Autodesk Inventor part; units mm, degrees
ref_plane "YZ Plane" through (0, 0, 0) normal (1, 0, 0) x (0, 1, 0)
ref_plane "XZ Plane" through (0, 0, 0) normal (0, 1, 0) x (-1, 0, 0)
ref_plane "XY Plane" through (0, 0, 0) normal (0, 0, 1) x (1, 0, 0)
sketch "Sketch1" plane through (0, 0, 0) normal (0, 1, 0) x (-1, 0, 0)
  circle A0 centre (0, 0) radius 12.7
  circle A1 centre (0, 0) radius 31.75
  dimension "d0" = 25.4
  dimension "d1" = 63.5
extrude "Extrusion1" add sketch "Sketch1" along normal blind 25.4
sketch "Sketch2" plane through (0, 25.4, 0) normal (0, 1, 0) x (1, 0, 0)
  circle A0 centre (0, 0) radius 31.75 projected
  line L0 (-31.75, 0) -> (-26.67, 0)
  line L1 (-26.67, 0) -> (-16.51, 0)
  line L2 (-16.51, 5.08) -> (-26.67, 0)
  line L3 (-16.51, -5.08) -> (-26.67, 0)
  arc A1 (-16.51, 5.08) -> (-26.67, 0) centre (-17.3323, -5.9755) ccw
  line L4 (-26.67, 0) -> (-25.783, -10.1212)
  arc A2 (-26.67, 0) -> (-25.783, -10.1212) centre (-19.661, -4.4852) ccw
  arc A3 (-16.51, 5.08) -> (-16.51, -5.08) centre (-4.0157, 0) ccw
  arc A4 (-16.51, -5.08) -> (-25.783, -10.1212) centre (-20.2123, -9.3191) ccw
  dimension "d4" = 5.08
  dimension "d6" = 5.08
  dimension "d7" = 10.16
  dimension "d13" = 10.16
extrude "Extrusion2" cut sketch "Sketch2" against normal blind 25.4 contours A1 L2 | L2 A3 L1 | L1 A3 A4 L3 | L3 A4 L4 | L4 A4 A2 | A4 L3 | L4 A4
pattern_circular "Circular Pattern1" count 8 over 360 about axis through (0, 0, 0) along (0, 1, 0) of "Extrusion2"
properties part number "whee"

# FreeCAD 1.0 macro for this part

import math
import FreeCAD as App
import Part
import Sketcher
from FreeCAD import Vector
Q = App.Units.Quantity

doc = App.newDocument("Part")
params = doc.addObject("Spreadsheet::Sheet", "Params")
for row, (alias, value) in enumerate([
    ("sketch1_diameter", "1 in"),
    ("sketch1_diameter2", "2.5 in"),
    ("pad1_length", "1 in"),
    ("sketch2_radius", "0.531 in"),
    ("pocket1_length", "1 in"),
], start=1):
    params.set(f"A{row}", alias)
    params.set(f"B{row}", "=" + value)
    params.setAlias(f"B{row}", alias)

body = doc.addObject("PartDesign::Body", "Body")

# Sketch on XZ plane
sketch1 = doc.addObject("Sketcher::SketchObject", "Sketch")
body.addObject(sketch1)
sketch1.AttachmentSupport = (doc.XZ_Plane, [""])
sketch1.MapMode = "FlatFace"
sketch1.addGeometry(Part.Circle(Vector(0, 0, 0), Vector(0, 0, 1), 32), False)
sketch1.addGeometry(Part.Circle(Vector(0, 0, 0), Vector(0, 0, 1), 13), False)
sketch1.addConstraint(Sketcher.Constraint("Coincident", 0, 3, -1, 1))
sketch1.addConstraint(Sketcher.Constraint("Coincident", 1, 3, -1, 1))
sketch1.addConstraint(Sketcher.Constraint("Diameter", 1, Q("1 in")))
sketch1.addConstraint(Sketcher.Constraint("Diameter", 0, Q("2.5 in")))
sketch1.setExpression("Constraints[2]", "Params.sketch1_diameter")
sketch1.setExpression("Constraints[3]", "Params.sketch1_diameter2")
pad1 = doc.addObject("PartDesign::Pad", "Pad")
body.addObject(pad1)
pad1.Profile = sketch1
pad1.setExpression("Length", "Params.pad1_length")
pad1.Reversed = True

# Sketch on XZ plane
sketch2 = doc.addObject("Sketcher::SketchObject", "Sketch001")
body.addObject(sketch2)
sketch2.AttachmentSupport = (doc.XZ_Plane, [""])
sketch2.MapMode = "FlatFace"
sketch2.AttachmentOffset = App.Placement(Vector(0, 0, -1 * 25.4), App.Rotation())
sketch2.addGeometry(Part.ArcOfCircle(Part.Circle(Vector(-17.3, 6, 0), Vector(0, 0, 1), 11.1), math.radians(-147), math.radians(-86)), False)
sketch2.addGeometry(Part.ArcOfCircle(Part.Circle(Vector(-19.7, 4.5, 0), Vector(0, 0, 1), 8.3), math.radians(137), math.radians(213)), False)
sketch2.addGeometry(Part.LineSegment(Vector(-25.8, 10.1, 0), Vector(-25.8, 9.5, 0)), False)
sketch2.addGeometry(Part.ArcOfCircle(Part.Circle(Vector(-20.2, 9.3, 0), Vector(0, 0, 1), 5.6), math.radians(178), math.radians(282)), False)
sketch2.addGeometry(Part.LineSegment(Vector(-19, 3.8, 0), Vector(-16.5, 5.1, 0)), False)
sketch2.addGeometry(Part.ArcOfCircle(Part.Circle(Vector(-4, 0, 0), Vector(0, 0, 1), 13.5), math.radians(158), math.radians(202)), False)
sketch2.addConstraint(Sketcher.Constraint("Tangent", 0, 1, 1, 2))
sketch2.addConstraint(Sketcher.Constraint("Coincident", 1, 1, 2, 1))
sketch2.addConstraint(Sketcher.Constraint("Coincident", 2, 2, 3, 1))
sketch2.addConstraint(Sketcher.Constraint("Coincident", 3, 2, 4, 1))
sketch2.addConstraint(Sketcher.Constraint("Coincident", 4, 2, 5, 1))
sketch2.addConstraint(Sketcher.Constraint("Coincident", 5, 2, 0, 2))
sketch2.addConstraint(Sketcher.Constraint("Symmetric", 4, 2, 5, 2, -1))
sketch2.addConstraint(Sketcher.Constraint("PointOnObject", 0, 1, -1))
sketch2.addConstraint(Sketcher.Constraint("DistanceY", -1, 1, 4, 2, Q("0.2 in")))
sketch2.addConstraint(Sketcher.Constraint("DistanceX", 0, 1, 5, 2, Q("0.4 in")))
sketch2.addConstraint(Sketcher.Constraint("Radius", 5, Q("0.531 in")))
sketch2.addConstraint(Sketcher.Constraint("Radius", 1, Q("0.3276 in")))
sketch2.addConstraint(Sketcher.Constraint("DistanceX", 0, 1, -1, 1, Q("1.05 in")))
sketch2.addConstraint(Sketcher.Constraint("Radius", 0, 11.086))
sketch2.addConstraint(Sketcher.Constraint("Radius", 3, 5.6282))
sketch2.addConstraint(Sketcher.Constraint("DistanceY", -1, 1, 3, 3, Q("0.3669 in")))
sketch2.addConstraint(Sketcher.Constraint("DistanceX", 3, 2, -1, 1, Q("0.7497 in")))
sketch2.addConstraint(Sketcher.Constraint("DistanceX", 3, 3, 1, 3, Q("0.0217 in")))
sketch2.addConstraint(Sketcher.Constraint("DistanceY", 1, 3, 1, 1, Q("0.2219 in")))
sketch2.addConstraint(Sketcher.Constraint("DistanceY", 3, 2, 2, 2, Q("0.2238 in")))
sketch2.setExpression("Constraints[10]", "Params.sketch2_radius")
pocket1 = doc.addObject("PartDesign::Pocket", "Pocket")
body.addObject(pocket1)
pocket1.Profile = sketch2
pocket1.setExpression("Length", "Params.pocket1_length")
pocket1.Reversed = True
doc.recompute()

polarpattern = doc.addObject("PartDesign::PolarPattern", "PolarPattern")
body.addObject(polarpattern)
polarpattern.Originals = [pocket1]
polarpattern.Axis = (doc.Y_Axis, [""])
polarpattern.Angle = 360
polarpattern.Occurrences = 8
body.Tip = polarpattern

doc.recompute()
